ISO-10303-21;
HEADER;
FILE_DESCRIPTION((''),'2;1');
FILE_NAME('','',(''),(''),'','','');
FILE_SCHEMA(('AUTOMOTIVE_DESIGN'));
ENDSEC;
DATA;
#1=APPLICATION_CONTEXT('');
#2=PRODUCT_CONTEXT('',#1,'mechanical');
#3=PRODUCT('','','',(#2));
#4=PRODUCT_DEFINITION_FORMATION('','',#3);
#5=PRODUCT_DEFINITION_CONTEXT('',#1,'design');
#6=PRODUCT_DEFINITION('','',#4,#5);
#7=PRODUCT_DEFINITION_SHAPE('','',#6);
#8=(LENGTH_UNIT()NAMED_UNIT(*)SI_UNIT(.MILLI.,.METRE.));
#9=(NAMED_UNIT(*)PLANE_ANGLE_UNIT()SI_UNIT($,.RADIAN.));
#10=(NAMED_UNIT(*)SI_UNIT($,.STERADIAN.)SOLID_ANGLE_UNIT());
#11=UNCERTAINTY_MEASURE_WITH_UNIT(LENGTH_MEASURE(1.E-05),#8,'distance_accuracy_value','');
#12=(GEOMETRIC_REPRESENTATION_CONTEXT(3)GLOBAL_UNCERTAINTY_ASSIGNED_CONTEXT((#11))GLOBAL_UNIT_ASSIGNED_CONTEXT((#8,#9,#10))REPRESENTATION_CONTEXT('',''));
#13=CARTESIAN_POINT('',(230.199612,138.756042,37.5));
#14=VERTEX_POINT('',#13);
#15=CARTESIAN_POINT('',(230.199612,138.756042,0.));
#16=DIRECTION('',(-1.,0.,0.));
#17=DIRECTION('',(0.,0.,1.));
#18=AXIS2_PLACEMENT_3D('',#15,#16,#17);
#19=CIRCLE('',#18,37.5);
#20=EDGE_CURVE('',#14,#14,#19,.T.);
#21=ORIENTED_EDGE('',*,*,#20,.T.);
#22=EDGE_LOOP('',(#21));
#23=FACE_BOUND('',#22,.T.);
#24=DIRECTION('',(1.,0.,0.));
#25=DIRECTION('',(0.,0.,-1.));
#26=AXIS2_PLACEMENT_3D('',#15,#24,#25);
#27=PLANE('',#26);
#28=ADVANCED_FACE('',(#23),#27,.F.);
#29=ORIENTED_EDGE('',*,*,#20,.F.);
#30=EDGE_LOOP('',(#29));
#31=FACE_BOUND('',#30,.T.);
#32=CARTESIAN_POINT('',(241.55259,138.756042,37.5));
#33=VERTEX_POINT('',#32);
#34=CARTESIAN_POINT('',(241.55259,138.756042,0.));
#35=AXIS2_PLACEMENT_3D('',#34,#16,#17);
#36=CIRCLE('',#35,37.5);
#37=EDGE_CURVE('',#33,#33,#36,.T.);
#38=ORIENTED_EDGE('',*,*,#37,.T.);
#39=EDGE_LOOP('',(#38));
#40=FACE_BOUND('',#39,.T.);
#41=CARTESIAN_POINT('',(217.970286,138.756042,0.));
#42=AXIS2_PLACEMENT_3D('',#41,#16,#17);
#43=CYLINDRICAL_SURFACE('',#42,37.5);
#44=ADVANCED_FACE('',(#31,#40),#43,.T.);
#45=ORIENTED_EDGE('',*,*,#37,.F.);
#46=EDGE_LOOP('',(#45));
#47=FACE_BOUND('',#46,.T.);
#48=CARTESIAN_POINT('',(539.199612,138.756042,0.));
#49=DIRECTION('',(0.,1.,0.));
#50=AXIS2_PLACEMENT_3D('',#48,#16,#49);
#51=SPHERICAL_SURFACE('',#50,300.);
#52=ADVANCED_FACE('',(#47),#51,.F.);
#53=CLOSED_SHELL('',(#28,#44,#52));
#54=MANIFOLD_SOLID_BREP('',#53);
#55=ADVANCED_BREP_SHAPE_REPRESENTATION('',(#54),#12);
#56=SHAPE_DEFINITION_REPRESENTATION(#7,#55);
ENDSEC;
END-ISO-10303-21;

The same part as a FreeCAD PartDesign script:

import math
import FreeCAD as App
import Part
import Sketcher

V = App.Vector

doc = App.newDocument("Part")
body = doc.addObject("PartDesign::Body", "Body")

sketch1 = body.newObject("Sketcher::SketchObject", "Sketch")
sketch1.AttachmentSupport = (doc.getObject("XY_Plane"), [""])
sketch1.MapMode = "FlatFace"
sketch1.addGeometry([
    Part.LineSegment(V(230, 176, 0), V(230, 139, 0)),
    Part.LineSegment(V(230, 139, 0), V(239, 139, 0)),
    Part.ArcOfCircle(Part.Circle(V(539, 139, 0), V(0, 0, 1), 300), math.radians(172.82), math.radians(180)),
    Part.LineSegment(V(242, 176, 0), V(230, 176, 0)),
], False)
sketch1.addGeometry(Part.LineSegment(V(230, 139, 0), V(539, 139, 0)), True)
sketch1.addConstraint([
    Sketcher.Constraint("Coincident", 0, 2, 1, 1),
    Sketcher.Constraint("Coincident", 1, 2, 2, 2),
    Sketcher.Constraint("Coincident", 2, 1, 3, 1),
    Sketcher.Constraint("Coincident", 3, 2, 0, 1),
    Sketcher.Constraint("Vertical", 0),
    Sketcher.Constraint("Horizontal", 1),
    Sketcher.Constraint("Horizontal", 3),
    Sketcher.Constraint("Horizontal", 4),
    Sketcher.Constraint("Coincident", 4, 1, 0, 2),
    Sketcher.Constraint("Coincident", 4, 2, 2, 3),
    Sketcher.Constraint("Radius", 2, 300.0),
    Sketcher.Constraint("DistanceX", 1, 1, 1, 2, 9.0),
    Sketcher.Constraint("DistanceY", 0, 2, 0, 1, 37.5),
    Sketcher.Constraint("DistanceX", -1, 1, 0, 2, 230.199612),
    Sketcher.Constraint("DistanceY", -1, 1, 2, 3, 138.756042),
])
revolution = body.newObject("PartDesign::Revolution", "Revolution")
revolution.Profile = sketch1
revolution.ReferenceAxis = (sketch1, ["Axis0"])
revolution.Angle = 360

doc.recompute()
